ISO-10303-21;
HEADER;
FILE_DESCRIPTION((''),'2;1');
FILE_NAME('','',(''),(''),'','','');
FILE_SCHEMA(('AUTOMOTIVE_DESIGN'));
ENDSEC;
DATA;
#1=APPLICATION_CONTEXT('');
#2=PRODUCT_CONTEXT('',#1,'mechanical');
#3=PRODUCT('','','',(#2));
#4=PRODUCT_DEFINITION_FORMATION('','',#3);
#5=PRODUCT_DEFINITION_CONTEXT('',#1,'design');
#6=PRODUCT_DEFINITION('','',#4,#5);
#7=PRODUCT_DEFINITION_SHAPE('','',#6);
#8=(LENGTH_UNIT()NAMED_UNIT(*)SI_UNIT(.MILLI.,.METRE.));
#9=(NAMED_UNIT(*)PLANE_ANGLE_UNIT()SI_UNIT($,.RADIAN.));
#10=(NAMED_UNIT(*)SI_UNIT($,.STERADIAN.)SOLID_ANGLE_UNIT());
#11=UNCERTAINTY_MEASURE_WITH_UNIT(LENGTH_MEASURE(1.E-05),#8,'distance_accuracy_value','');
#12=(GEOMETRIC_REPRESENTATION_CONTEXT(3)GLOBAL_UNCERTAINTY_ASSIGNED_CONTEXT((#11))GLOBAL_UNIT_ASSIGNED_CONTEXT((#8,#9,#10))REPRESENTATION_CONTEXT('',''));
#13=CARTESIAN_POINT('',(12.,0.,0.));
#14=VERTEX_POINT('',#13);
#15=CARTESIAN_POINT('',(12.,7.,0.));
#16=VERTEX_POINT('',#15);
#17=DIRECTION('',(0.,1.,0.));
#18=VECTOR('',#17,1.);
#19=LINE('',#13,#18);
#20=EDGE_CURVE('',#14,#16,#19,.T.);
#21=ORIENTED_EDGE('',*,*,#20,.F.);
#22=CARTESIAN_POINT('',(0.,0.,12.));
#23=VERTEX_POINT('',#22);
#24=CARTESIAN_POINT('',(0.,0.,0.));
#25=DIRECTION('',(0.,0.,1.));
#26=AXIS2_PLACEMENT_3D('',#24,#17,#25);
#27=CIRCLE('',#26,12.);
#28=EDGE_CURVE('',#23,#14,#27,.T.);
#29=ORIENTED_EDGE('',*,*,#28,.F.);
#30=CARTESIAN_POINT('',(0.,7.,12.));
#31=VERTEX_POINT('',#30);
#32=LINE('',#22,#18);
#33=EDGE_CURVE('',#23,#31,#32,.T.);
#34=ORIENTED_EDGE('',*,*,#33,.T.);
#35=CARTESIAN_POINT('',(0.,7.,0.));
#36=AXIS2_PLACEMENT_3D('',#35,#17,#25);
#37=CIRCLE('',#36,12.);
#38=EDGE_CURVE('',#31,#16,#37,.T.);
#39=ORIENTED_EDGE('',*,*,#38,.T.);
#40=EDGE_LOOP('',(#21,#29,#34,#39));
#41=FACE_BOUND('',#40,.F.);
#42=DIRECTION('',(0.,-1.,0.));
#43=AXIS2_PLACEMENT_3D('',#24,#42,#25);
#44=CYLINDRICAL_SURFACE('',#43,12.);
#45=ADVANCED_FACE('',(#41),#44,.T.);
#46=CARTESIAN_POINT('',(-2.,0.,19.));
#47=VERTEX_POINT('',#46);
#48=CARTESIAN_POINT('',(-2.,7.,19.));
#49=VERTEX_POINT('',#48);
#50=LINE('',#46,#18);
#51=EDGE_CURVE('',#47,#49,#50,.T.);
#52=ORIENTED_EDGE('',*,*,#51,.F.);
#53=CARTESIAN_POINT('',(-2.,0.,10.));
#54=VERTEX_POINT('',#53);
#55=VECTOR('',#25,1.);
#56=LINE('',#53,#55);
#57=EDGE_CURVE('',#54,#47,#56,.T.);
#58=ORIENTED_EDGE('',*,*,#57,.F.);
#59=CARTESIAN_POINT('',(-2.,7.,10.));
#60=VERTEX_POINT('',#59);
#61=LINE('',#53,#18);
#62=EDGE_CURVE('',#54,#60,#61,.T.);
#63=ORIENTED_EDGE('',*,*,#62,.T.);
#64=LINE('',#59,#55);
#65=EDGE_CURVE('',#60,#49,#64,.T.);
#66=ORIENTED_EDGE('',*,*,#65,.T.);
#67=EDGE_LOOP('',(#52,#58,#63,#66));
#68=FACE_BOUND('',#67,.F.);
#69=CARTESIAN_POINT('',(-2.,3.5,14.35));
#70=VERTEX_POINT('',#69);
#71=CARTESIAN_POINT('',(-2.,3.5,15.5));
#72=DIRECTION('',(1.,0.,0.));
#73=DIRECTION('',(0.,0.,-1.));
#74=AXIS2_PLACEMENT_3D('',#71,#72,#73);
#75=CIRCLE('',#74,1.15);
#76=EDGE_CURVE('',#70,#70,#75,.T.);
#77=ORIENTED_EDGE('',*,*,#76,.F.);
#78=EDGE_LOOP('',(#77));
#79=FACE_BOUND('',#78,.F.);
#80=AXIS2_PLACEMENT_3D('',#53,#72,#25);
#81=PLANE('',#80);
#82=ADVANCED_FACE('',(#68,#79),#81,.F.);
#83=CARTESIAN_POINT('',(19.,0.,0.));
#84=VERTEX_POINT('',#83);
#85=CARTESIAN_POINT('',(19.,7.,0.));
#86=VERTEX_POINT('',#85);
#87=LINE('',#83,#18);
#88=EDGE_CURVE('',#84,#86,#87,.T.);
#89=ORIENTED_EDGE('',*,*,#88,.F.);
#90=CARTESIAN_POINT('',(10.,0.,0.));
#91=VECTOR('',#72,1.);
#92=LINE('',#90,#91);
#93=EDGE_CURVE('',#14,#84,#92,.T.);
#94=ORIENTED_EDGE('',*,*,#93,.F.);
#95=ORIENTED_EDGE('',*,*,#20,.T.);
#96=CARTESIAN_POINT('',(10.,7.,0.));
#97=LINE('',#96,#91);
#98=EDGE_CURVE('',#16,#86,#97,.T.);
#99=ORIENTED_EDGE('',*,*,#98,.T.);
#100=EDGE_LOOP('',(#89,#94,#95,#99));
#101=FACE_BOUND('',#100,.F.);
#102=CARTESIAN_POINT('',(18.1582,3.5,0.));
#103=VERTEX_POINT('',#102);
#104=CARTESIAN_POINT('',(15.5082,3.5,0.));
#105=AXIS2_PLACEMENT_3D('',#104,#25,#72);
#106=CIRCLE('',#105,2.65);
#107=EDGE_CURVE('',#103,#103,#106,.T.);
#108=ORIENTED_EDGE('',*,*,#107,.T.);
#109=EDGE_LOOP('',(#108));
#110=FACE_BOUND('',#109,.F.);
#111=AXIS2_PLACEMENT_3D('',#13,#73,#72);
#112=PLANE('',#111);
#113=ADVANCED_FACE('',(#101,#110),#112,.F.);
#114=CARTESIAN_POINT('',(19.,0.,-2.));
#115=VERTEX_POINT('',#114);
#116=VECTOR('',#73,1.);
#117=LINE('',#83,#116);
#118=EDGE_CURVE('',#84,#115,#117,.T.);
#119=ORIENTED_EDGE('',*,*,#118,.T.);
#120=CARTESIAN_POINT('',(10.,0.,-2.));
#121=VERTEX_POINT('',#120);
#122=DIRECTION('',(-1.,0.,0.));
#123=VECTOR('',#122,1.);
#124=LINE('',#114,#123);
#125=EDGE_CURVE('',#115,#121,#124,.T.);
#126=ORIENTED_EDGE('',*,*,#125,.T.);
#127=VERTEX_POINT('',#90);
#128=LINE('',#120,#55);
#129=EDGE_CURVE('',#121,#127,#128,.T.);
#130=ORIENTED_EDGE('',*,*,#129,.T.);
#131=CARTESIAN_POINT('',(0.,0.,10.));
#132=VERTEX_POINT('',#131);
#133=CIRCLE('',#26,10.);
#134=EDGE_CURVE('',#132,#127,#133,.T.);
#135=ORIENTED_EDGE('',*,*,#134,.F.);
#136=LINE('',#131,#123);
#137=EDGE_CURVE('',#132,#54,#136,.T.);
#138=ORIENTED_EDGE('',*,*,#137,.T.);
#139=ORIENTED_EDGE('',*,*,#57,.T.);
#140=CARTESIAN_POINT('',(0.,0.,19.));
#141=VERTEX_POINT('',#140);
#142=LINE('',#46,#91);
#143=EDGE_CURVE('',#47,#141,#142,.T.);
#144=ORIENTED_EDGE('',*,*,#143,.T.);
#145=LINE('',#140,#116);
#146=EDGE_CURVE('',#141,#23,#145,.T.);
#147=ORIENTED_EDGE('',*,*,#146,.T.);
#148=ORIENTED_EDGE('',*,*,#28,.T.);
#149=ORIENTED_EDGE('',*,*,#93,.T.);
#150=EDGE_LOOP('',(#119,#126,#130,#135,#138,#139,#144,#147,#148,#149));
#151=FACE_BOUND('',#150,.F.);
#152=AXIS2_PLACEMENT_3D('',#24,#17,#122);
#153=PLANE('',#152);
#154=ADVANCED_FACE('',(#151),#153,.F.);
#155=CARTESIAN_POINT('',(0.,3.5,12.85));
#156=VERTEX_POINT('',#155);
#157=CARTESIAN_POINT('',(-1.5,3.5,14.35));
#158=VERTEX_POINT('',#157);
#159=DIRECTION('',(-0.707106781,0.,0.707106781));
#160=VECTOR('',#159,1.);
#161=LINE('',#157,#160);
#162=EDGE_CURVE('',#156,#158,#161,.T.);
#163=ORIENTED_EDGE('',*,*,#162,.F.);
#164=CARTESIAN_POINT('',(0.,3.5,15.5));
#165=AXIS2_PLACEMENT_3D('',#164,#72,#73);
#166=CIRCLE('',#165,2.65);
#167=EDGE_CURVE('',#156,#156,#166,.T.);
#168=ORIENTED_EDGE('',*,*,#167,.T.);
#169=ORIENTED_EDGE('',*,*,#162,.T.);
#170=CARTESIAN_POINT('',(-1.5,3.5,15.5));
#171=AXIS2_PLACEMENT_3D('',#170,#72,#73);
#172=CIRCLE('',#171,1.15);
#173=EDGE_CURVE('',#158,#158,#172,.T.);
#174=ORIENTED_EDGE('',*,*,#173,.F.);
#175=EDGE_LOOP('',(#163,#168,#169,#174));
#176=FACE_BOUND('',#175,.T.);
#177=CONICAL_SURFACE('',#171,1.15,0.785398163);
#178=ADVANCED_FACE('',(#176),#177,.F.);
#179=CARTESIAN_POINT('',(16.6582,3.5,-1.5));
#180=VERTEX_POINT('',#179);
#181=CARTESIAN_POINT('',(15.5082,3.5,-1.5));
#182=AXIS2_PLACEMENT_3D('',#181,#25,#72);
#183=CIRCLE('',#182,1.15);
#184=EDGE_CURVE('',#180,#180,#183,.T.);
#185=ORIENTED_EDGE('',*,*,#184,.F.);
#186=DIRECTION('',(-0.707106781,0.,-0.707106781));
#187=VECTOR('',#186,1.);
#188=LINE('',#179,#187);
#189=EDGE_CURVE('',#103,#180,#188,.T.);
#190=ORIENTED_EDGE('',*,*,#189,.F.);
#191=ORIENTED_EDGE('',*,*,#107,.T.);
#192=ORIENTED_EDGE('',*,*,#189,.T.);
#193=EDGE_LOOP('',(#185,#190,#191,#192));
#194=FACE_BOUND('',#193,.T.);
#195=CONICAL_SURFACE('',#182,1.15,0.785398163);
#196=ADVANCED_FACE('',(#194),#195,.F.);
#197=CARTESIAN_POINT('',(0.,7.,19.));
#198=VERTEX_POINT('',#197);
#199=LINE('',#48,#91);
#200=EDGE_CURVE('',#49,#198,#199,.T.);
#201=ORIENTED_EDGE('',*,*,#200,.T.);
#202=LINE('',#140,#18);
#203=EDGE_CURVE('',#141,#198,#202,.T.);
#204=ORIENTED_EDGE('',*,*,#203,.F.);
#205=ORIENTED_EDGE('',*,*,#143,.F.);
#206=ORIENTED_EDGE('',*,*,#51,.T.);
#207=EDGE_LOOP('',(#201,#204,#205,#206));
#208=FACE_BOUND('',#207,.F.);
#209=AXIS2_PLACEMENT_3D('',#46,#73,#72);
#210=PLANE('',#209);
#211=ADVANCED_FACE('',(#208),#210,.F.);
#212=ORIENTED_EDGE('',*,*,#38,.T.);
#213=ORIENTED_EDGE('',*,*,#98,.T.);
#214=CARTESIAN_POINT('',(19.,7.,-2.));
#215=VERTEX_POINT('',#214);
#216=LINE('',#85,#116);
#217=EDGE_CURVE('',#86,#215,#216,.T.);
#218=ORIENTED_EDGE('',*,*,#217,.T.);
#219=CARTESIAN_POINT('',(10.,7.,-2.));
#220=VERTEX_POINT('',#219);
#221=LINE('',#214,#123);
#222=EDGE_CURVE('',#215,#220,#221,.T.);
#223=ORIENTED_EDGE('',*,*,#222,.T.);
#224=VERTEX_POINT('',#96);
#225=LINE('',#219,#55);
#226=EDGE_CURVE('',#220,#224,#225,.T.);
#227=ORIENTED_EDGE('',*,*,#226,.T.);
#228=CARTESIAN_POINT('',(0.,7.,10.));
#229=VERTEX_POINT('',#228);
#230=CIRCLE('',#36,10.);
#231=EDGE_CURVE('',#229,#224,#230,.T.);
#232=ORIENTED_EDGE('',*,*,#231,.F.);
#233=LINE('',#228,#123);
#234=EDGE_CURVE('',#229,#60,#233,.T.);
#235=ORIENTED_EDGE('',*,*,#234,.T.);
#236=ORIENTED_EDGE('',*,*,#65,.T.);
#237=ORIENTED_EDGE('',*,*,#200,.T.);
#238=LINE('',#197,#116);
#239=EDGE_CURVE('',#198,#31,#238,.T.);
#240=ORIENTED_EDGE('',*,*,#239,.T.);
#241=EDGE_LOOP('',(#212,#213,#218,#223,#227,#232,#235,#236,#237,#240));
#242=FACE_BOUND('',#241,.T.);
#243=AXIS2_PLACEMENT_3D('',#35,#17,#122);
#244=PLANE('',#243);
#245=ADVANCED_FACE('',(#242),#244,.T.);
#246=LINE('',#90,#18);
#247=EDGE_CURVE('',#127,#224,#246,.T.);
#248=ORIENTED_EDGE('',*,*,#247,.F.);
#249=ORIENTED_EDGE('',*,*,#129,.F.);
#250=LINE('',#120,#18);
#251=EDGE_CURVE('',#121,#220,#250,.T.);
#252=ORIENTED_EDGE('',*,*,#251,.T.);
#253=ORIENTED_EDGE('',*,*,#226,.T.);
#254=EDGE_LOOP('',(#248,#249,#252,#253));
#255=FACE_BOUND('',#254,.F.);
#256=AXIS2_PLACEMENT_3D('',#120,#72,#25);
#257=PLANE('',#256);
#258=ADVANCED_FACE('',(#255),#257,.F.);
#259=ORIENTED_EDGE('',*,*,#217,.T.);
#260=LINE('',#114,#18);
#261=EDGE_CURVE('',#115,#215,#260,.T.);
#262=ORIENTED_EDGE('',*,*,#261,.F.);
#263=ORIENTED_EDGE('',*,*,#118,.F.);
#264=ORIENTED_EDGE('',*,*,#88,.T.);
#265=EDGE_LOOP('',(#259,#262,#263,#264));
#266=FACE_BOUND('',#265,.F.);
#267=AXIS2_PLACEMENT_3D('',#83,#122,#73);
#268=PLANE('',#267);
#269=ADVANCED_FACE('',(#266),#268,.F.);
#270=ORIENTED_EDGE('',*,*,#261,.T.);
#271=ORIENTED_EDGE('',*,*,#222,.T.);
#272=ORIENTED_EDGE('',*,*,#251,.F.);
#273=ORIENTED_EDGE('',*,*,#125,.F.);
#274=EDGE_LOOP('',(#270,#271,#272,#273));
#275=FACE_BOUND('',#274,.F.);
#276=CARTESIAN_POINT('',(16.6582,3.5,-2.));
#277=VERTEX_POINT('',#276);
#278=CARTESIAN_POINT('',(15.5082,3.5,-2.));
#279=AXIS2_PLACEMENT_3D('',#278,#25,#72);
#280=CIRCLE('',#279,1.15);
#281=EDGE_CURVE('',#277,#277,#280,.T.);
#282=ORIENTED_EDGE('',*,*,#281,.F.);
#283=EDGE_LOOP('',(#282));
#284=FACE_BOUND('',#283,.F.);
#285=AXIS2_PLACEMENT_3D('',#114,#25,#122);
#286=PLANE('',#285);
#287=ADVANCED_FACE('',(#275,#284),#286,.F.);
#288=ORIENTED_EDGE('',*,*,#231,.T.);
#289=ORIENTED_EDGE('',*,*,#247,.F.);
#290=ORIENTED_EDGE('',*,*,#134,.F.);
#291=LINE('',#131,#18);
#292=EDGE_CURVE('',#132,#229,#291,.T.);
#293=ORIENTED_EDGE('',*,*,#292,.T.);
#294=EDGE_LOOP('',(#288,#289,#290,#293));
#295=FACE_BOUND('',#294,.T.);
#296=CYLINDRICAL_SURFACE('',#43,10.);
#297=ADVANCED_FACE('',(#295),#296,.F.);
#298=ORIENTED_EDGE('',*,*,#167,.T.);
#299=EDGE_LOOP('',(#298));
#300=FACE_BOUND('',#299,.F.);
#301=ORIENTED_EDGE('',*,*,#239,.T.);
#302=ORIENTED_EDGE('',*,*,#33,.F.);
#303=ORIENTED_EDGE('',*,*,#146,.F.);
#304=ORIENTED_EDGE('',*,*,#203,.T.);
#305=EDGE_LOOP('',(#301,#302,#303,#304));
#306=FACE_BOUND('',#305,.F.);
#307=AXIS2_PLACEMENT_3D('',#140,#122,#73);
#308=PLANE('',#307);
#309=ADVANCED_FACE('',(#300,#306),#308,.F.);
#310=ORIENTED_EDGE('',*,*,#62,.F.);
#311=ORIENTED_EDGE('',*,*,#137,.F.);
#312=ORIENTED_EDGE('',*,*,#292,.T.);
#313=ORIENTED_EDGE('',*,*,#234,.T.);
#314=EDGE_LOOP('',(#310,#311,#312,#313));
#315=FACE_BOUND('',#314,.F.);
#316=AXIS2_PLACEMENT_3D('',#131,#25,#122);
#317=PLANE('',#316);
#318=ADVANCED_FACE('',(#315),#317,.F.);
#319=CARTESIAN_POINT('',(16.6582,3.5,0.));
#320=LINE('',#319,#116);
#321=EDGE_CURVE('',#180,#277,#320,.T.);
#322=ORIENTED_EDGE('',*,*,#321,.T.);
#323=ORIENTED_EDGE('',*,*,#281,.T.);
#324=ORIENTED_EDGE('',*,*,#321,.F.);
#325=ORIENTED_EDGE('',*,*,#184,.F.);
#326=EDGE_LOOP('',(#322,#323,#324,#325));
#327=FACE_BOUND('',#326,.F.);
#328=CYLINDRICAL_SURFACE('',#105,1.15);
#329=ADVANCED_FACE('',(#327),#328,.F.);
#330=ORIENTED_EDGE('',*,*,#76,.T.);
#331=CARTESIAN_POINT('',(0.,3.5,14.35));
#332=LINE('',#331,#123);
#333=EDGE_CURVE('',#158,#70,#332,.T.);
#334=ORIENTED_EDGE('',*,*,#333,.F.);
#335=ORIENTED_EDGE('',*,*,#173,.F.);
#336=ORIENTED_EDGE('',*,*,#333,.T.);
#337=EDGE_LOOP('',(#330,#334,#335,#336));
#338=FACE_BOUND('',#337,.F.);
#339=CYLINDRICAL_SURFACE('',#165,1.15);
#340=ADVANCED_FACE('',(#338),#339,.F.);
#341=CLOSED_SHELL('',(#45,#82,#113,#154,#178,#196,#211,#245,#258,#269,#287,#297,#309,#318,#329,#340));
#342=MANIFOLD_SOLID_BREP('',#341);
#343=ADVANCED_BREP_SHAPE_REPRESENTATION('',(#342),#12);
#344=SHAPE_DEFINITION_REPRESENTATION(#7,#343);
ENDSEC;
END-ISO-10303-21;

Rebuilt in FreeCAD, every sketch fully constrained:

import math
import FreeCAD as App
import Part
import Sketcher
from FreeCAD import Vector


def edges_at(feature, points):
    """Names of the edges that pass closest to the given points."""
    edges = feature.Shape.Edges
    near = lambda p: min(range(len(edges)), key=lambda i: edges[i].distToShape(Part.Vertex(*p))[0])
    return sorted({f"Edge{near(p) + 1}" for p in points})

doc = App.newDocument("Part")
body = doc.addObject("PartDesign::Body", "Body")

sketch1 = body.newObject("Sketcher::SketchObject", "Sketch")
sketch1.AttachmentSupport = (doc.getObject("XZ_Plane"), [""])
sketch1.MapMode = "FlatFace"
sketch1.addGeometry(Part.LineSegment(Vector(0, 19, 0), Vector(0, 12, 0)), False)
sketch1.addGeometry(Part.ArcOfCircle(Part.Circle(Vector(0, 0, 0), Vector(0, 0, 1), 12), math.radians(0), math.radians(90)), False)
sketch1.addGeometry(Part.LineSegment(Vector(12, 0, 0), Vector(19, 0, 0)), False)
sketch1.addGeometry(Part.LineSegment(Vector(19, 0, 0), Vector(19, -2, 0)), False)
sketch1.addGeometry(Part.LineSegment(Vector(19, -2, 0), Vector(10, -2, 0)), False)
sketch1.addGeometry(Part.LineSegment(Vector(10, -2, 0), Vector(10, 0, 0)), False)
sketch1.addGeometry(Part.ArcOfCircle(Part.Circle(Vector(0, 0, 0), Vector(0, 0, 1), 10), math.radians(0), math.radians(90)), False)
sketch1.addGeometry(Part.LineSegment(Vector(0, 10, 0), Vector(-2, 10, 0)), False)
sketch1.addGeometry(Part.LineSegment(Vector(-2, 10, 0), Vector(-2, 19, 0)), False)
sketch1.addGeometry(Part.LineSegment(Vector(-2, 19, 0), Vector(0, 19, 0)), False)
sketch1.addConstraint(Sketcher.Constraint("Coincident", 0, 2, 1, 2))
sketch1.addConstraint(Sketcher.Constraint("Coincident", 1, 1, 2, 1))
sketch1.addConstraint(Sketcher.Constraint("Coincident", 2, 2, 3, 1))
sketch1.addConstraint(Sketcher.Constraint("Coincident", 3, 2, 4, 1))
sketch1.addConstraint(Sketcher.Constraint("Coincident", 4, 2, 5, 1))
sketch1.addConstraint(Sketcher.Constraint("Tangent", 5, 2, 6, 1))
sketch1.addConstraint(Sketcher.Constraint("Tangent", 6, 2, 7, 1))
sketch1.addConstraint(Sketcher.Constraint("Coincident", 7, 2, 8, 1))
sketch1.addConstraint(Sketcher.Constraint("Coincident", 8, 2, 9, 1))
sketch1.addConstraint(Sketcher.Constraint("Coincident", 9, 2, 0, 1))
sketch1.addConstraint(Sketcher.Constraint("Vertical", 0))
sketch1.addConstraint(Sketcher.Constraint("Horizontal", 2))
sketch1.addConstraint(Sketcher.Constraint("Vertical", 3))
sketch1.addConstraint(Sketcher.Constraint("Horizontal", 4))
sketch1.addConstraint(Sketcher.Constraint("Vertical", 5))
sketch1.addConstraint(Sketcher.Constraint("Horizontal", 7))
sketch1.addConstraint(Sketcher.Constraint("Vertical", 8))
sketch1.addConstraint(Sketcher.Constraint("Horizontal", 9))
sketch1.addConstraint(Sketcher.Constraint("Coincident", 1, 3, -1, 1))
sketch1.addConstraint(Sketcher.Constraint("Coincident", 6, 3, -1, 1))
sketch1.addConstraint(Sketcher.Constraint("PointOnObject", 0, 2, -2))
sketch1.addConstraint(Sketcher.Constraint("PointOnObject", 1, 1, -1))
sketch1.addConstraint(Sketcher.Constraint("Equal", 2, 0))
sketch1.addConstraint(Sketcher.Constraint("Equal", 9, 3))
sketch1.addConstraint(Sketcher.Constraint("Radius", 1, 12.0))
sketch1.addConstraint(Sketcher.Constraint("Radius", 6, 10.0))
sketch1.addConstraint(Sketcher.Constraint("DistanceX", 4, 2, 4, 1, 9.0))
sketch1.addConstraint(Sketcher.Constraint("DistanceX", 7, 2, 7, 1, 2.0))
pad1 = body.newObject("PartDesign::Pad", "Pad")
pad1.Profile = sketch1
pad1.Length = 7
pad1.Reversed = True

sketch2 = body.newObject("Sketcher::SketchObject", "Sketch001")
sketch2.AttachmentSupport = (doc.getObject("YZ_Plane"), [""])
sketch2.MapMode = "FlatFace"
sketch2.addGeometry(Part.Circle(Vector(3.5, 15.5, 0), Vector(0, 0, 1), 1.1), False)
sketch2.addConstraint(Sketcher.Constraint("Diameter", 0, 2.3))
sketch2.addConstraint(Sketcher.Constraint("DistanceX", -1, 1, 0, 3, 3.5))
sketch2.addConstraint(Sketcher.Constraint("DistanceY", -1, 1, 0, 3, 15.5))
pocket1 = body.newObject("PartDesign::Pocket", "Pocket")
pocket1.Profile = sketch2
pocket1.Length = 2
doc.recompute()

chamfer = body.newObject("PartDesign::Chamfer", "Chamfer")
chamfer.Base = (pocket1, edges_at(pocket1, [(0, 3.5, 16.65)]))
chamfer.Size = 1.5

sketch3 = body.newObject("Sketcher::SketchObject", "Sketch002")
sketch3.AttachmentSupport = (doc.getObject("XY_Plane"), [""])
sketch3.MapMode = "FlatFace"
sketch3.addGeometry(Part.Circle(Vector(15.5, 3.5, 0), Vector(0, 0, 1), 1.1), False)
sketch3.addConstraint(Sketcher.Constraint("Diameter", 0, 2.3))
sketch3.addConstraint(Sketcher.Constraint("DistanceY", -1, 1, 0, 3, 3.5))
sketch3.addConstraint(Sketcher.Constraint("DistanceX", -1, 1, 0, 3, 15.5082))
pocket2 = body.newObject("PartDesign::Pocket", "Pocket001")
pocket2.Profile = sketch3
pocket2.Length = 2
doc.recompute()

chamfer2 = body.newObject("PartDesign::Chamfer", "Chamfer001")
chamfer2.Base = (pocket2, edges_at(pocket2, [(14.358, 3.5, 0)]))
chamfer2.Size = 1.5

doc.recompute()
